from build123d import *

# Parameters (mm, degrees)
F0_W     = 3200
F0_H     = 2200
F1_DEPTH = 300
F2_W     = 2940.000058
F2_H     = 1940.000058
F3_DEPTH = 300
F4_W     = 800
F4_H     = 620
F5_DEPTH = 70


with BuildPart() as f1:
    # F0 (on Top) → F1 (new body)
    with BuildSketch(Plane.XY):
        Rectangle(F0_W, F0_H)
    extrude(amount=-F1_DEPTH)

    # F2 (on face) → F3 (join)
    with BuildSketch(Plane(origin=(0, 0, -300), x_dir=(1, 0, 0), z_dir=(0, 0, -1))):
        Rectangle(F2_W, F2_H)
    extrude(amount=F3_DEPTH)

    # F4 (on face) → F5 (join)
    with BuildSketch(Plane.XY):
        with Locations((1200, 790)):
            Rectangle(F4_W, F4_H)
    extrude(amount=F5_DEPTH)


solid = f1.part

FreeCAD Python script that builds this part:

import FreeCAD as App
import Part
import Sketcher
from FreeCAD import Vector

doc = App.newDocument("Part")
body = doc.addObject("PartDesign::Body", "Body")

sketch1 = body.newObject("Sketcher::SketchObject", "Sketch")
sketch1.AttachmentSupport = (doc.getObject("XY_Plane"), [""])
sketch1.MapMode = "FlatFace"
sketch1.addGeometry(Part.LineSegment(Vector(-1600, 1100, 0), Vector(-1600, -1100, 0)), False)
sketch1.addGeometry(Part.LineSegment(Vector(-1600, -1100, 0), Vector(1600, -1100, 0)), False)
sketch1.addGeometry(Part.LineSegment(Vector(1600, -1100, 0), Vector(1600, 1100, 0)), False)
sketch1.addGeometry(Part.LineSegment(Vector(1600, 1100, 0), Vector(-1600, 1100, 0)), False)
sketch1.addConstraint(Sketcher.Constraint("Coincident", 0, 2, 1, 1))
sketch1.addConstraint(Sketcher.Constraint("Coincident", 1, 2, 2, 1))
sketch1.addConstraint(Sketcher.Constraint("Coincident", 2, 2, 3, 1))
sketch1.addConstraint(Sketcher.Constraint("Coincident", 3, 2, 0, 1))
sketch1.addConstraint(Sketcher.Constraint("Vertical", 0))
sketch1.addConstraint(Sketcher.Constraint("Horizontal", 1))
sketch1.addConstraint(Sketcher.Constraint("Vertical", 2))
sketch1.addConstraint(Sketcher.Constraint("Horizontal", 3))
sketch1.addConstraint(Sketcher.Constraint("Symmetric", 0, 2, 2, 2, -1, 1))
sketch1.addConstraint(Sketcher.Constraint("DistanceX", 1, 1, 1, 2, 3200.0))
sketch1.addConstraint(Sketcher.Constraint("DistanceY", 0, 2, 0, 1, 2200.0))
pad1 = body.newObject("PartDesign::Pad", "Pad")
pad1.Profile = sketch1
pad1.Length = 300
pad1.Reversed = True

sketch2 = body.newObject("Sketcher::SketchObject", "Sketch001")
sketch2.AttachmentSupport = (doc.getObject("XY_Plane"), [""])
sketch2.MapMode = "FlatFace"
sketch2.AttachmentOffset = App.Placement(Vector(0, 0, -300), App.Rotation())
sketch2.addGeometry(Part.LineSegment(Vector(-1470.000029, -970.000029, 0), Vector(-1470.000029, 970.000029, 0)), False)
sketch2.addGeometry(Part.LineSegment(Vector(-1470.000029, 970.000029, 0), Vector(1470.000029, 970.000029, 0)), False)
sketch2.addGeometry(Part.LineSegment(Vector(1470.000029, 970.000029, 0), Vector(1470.000029, -970.000029, 0)), False)
sketch2.addGeometry(Part.LineSegment(Vector(1470.000029, -970.000029, 0), Vector(-1470.000029, -970.000029, 0)), False)
sketch2.addConstraint(Sketcher.Constraint("Coincident", 0, 2, 1, 1))
sketch2.addConstraint(Sketcher.Constraint("Coincident", 1, 2, 2, 1))
sketch2.addConstraint(Sketcher.Constraint("Coincident", 2, 2, 3, 1))
sketch2.addConstraint(Sketcher.Constraint("Coincident", 3, 2, 0, 1))
sketch2.addConstraint(Sketcher.Constraint("Vertical", 0))
sketch2.addConstraint(Sketcher.Constraint("Horizontal", 1))
sketch2.addConstraint(Sketcher.Constraint("Vertical", 2))
sketch2.addConstraint(Sketcher.Constraint("Horizontal", 3))
sketch2.addConstraint(Sketcher.Constraint("Symmetric", 0, 2, 2, 2, -1, 1))
sketch2.addConstraint(Sketcher.Constraint("DistanceX", 1, 1, 1, 2, 2940.000058))
sketch2.addConstraint(Sketcher.Constraint("DistanceY", 0, 1, 0, 2, 1940.000058))
pad2 = body.newObject("PartDesign::Pad", "Pad001")
pad2.Profile = sketch2
pad2.Length = 300
pad2.Reversed = True

sketch3 = body.newObject("Sketcher::SketchObject", "Sketch002")
sketch3.AttachmentSupport = (doc.getObject("XY_Plane"), [""])
sketch3.MapMode = "FlatFace"
sketch3.addGeometry(Part.LineSegment(Vector(800, 1100, 0), Vector(800, 480, 0)), False)
sketch3.addGeometry(Part.LineSegment(Vector(800, 480, 0), Vector(1600, 480, 0)), False)
sketch3.addGeometry(Part.LineSegment(Vector(1600, 480, 0), Vector(1600, 1100, 0)), False)
sketch3.addGeometry(Part.LineSegment(Vector(1600, 1100, 0), Vector(800, 1100, 0)), False)
sketch3.addConstraint(Sketcher.Constraint("Coincident", 0, 2, 1, 1))
sketch3.addConstraint(Sketcher.Constraint("Coincident", 1, 2, 2, 1))
sketch3.addConstraint(Sketcher.Constraint("Coincident", 2, 2, 3, 1))
sketch3.addConstraint(Sketcher.Constraint("Coincident", 3, 2, 0, 1))
sketch3.addConstraint(Sketcher.Constraint("Vertical", 0))
sketch3.addConstraint(Sketcher.Constraint("Horizontal", 1))
sketch3.addConstraint(Sketcher.Constraint("Vertical", 2))
sketch3.addConstraint(Sketcher.Constraint("Horizontal", 3))
sketch3.addConstraint(Sketcher.Constraint("DistanceX", 1, 1, 1, 2, 800.0))
sketch3.addConstraint(Sketcher.Constraint("DistanceY", 0, 2, 0, 1, 620.0))
sketch3.addConstraint(Sketcher.Constraint("DistanceX", -1, 1, 0, 2, 800.0))
sketch3.addConstraint(Sketcher.Constraint("DistanceY", -1, 1, 0, 2, 480.0))
pad3 = body.newObject("PartDesign::Pad", "Pad002")
pad3.Profile = sketch3
pad3.Length = 70

doc.recompute()
